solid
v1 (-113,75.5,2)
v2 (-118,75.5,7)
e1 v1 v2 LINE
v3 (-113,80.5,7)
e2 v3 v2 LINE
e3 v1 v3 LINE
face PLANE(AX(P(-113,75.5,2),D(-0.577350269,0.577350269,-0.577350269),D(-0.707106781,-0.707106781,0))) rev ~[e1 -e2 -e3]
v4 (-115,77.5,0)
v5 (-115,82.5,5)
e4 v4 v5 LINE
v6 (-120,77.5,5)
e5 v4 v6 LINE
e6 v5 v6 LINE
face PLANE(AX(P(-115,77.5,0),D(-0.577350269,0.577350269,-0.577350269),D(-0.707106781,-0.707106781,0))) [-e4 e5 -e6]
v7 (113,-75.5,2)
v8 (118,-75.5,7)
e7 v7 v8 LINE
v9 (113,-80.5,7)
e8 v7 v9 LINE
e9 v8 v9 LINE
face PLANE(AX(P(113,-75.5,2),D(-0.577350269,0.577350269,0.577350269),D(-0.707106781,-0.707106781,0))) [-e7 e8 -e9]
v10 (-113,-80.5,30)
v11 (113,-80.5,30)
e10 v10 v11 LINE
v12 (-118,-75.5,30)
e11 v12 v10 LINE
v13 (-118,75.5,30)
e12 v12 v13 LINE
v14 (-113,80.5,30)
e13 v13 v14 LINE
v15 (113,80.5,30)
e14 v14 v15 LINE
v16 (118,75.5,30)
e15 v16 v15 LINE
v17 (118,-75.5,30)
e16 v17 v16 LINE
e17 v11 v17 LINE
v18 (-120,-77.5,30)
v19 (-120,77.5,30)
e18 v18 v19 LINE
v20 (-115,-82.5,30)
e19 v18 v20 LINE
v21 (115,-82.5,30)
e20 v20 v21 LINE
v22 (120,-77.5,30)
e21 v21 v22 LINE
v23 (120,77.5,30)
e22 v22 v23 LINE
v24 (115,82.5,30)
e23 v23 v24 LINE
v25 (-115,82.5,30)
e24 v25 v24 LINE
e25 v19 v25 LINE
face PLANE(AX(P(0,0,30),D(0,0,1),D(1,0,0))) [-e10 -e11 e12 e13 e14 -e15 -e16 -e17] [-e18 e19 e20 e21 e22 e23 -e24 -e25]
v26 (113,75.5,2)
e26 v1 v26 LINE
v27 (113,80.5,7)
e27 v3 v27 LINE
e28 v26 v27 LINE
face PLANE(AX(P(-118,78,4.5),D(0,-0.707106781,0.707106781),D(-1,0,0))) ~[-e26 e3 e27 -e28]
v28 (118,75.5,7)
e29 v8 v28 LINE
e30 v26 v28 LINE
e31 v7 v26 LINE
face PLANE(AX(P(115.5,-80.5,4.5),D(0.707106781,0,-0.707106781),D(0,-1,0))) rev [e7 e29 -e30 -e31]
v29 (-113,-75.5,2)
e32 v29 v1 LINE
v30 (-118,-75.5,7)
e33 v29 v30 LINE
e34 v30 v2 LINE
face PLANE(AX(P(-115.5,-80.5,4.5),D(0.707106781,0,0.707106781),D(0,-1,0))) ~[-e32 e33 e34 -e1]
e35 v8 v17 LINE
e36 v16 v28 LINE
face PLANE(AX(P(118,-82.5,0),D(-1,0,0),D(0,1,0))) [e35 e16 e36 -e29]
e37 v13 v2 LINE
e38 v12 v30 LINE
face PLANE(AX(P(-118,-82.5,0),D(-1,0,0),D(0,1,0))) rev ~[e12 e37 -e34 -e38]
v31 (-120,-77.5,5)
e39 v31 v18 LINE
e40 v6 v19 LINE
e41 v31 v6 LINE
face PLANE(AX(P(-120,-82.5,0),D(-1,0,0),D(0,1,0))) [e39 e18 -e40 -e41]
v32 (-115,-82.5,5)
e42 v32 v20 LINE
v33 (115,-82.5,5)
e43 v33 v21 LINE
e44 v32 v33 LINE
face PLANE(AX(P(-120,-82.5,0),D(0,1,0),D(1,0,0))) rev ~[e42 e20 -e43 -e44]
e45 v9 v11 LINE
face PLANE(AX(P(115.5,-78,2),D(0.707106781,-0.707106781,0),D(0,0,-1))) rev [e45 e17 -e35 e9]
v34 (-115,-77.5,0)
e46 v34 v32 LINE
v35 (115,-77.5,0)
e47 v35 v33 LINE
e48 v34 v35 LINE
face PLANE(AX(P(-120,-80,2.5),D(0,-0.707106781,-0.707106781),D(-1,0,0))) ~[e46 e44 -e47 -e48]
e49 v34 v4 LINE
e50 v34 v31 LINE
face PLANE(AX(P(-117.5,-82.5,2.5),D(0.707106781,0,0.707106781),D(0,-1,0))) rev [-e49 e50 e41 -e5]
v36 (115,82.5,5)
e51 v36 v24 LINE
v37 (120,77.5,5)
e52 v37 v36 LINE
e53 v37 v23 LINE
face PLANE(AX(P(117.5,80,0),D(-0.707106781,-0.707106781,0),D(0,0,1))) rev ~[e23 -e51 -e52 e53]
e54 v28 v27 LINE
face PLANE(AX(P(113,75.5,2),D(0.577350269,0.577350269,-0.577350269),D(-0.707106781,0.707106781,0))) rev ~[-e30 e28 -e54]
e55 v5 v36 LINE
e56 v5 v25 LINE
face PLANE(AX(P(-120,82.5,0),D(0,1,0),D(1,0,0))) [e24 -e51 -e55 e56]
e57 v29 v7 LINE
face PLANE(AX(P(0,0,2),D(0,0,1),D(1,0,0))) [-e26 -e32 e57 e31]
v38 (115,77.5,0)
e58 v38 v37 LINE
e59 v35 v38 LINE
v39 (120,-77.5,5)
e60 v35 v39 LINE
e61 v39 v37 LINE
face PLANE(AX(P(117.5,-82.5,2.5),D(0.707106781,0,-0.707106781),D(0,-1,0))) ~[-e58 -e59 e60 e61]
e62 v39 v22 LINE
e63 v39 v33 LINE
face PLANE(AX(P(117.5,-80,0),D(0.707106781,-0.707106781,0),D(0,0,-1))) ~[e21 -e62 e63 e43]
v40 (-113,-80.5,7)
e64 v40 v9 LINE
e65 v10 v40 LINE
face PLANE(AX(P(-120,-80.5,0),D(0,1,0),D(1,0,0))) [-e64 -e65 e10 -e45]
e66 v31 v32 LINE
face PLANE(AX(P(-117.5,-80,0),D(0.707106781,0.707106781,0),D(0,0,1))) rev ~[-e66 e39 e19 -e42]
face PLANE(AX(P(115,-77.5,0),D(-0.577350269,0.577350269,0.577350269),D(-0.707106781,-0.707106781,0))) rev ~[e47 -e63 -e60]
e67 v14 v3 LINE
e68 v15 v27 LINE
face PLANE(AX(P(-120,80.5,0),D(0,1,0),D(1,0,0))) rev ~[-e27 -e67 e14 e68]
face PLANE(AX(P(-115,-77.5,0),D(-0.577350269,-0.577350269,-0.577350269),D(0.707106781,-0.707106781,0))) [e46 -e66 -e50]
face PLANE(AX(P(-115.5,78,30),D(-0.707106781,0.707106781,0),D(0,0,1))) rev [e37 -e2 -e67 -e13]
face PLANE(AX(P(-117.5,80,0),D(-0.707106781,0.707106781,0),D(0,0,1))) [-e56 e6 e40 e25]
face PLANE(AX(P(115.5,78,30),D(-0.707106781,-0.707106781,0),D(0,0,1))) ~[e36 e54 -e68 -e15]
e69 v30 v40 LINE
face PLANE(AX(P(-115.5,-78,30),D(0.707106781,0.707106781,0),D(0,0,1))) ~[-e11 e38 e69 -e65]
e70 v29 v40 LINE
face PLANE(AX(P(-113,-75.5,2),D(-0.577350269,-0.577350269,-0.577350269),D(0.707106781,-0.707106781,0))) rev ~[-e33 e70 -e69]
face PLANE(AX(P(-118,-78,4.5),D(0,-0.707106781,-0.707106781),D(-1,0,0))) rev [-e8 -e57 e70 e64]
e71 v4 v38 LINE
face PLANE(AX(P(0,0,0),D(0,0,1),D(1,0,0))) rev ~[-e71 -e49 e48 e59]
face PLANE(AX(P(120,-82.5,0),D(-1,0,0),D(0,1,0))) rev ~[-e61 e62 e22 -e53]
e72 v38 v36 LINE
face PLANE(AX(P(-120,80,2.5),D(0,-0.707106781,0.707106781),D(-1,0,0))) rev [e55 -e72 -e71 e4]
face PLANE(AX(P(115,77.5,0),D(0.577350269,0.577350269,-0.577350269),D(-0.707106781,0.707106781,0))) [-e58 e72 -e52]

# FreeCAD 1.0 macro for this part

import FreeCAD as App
import Part
import Sketcher


def edges_at(feature, points):
    """Names of the edges that pass closest to the given points."""
    edges = feature.Shape.Edges
    near = lambda p: min(range(len(edges)), key=lambda i: edges[i].distToShape(Part.Vertex(*p))[0])
    return sorted({f"Edge{near(p) + 1}" for p in points})


def faces_at(feature, points):
    """Names of the faces that lie closest to the given points."""
    faces = feature.Shape.Faces
    near = lambda p: min(range(len(faces)), key=lambda i: faces[i].distToShape(Part.Vertex(*p))[0])
    return sorted({f"Face{near(p) + 1}" for p in points})

doc = App.newDocument("Part")
params = doc.addObject("Spreadsheet::Sheet", "Params")
for row, (alias, value) in enumerate([
    ("sketch1_width", "240 mm"),
    ("sketch1_height", "165 mm"),
    ("pad1_length", "30 mm"),
    ("thickness_wall", "2 mm"),
    ("chamfer_size", "5 mm"),
], start=1):
    params.set(f"A{row}", alias)
    params.set(f"B{row}", "=" + value)
    params.setAlias(f"B{row}", alias)

body = doc.addObject("PartDesign::Body", "Body")

# Sketch on XY plane
sketch1 = body.newObject("Sketcher::SketchObject", "Sketch")
sketch1.AttachmentSupport = (doc.getObject("XY_Plane"), [""])
sketch1.MapMode = "FlatFace"
sketch1.addGeometry([
    Part.LineSegment(App.Vector(-120, 82, 0), App.Vector(-120, -82, 0)),
    Part.LineSegment(App.Vector(-120, -82, 0), App.Vector(120, -82, 0)),
    Part.LineSegment(App.Vector(120, -82, 0), App.Vector(120, 82, 0)),
    Part.LineSegment(App.Vector(120, 82, 0), App.Vector(-120, 82, 0)),
], False)
sketch1.addConstraint([
    Sketcher.Constraint("Coincident", 0, 2, 1, 1),
    Sketcher.Constraint("Coincident", 1, 2, 2, 1),
    Sketcher.Constraint("Coincident", 2, 2, 3, 1),
    Sketcher.Constraint("Coincident", 3, 2, 0, 1),
    Sketcher.Constraint("Vertical", 0),
    Sketcher.Constraint("Horizontal", 1),
    Sketcher.Constraint("Vertical", 2),
    Sketcher.Constraint("Horizontal", 3),
    Sketcher.Constraint("Symmetric", 0, 2, 2, 2, -1, 1),
    Sketcher.Constraint("DistanceX", 1, 1, 1, 2, 240.0),
    Sketcher.Constraint("DistanceY", 0, 2, 0, 1, 165.0),
])
sketch1.setExpression("Constraints[9]", "Params.sketch1_width")
sketch1.setExpression("Constraints[10]", "Params.sketch1_height")
pad1 = body.newObject("PartDesign::Pad", "Pad")
pad1.Profile = sketch1
pad1.setExpression("Length", "Params.pad1_length")
doc.recompute()

thickness = body.newObject("PartDesign::Thickness", "Thickness")
thickness.Base = (pad1, faces_at(pad1, [(0, 0, 30)]))
thickness.setExpression("Value", "Params.thickness_wall")
thickness.Reversed = True
thickness.Join = "Arc"
doc.recompute()

chamfer = body.newObject("PartDesign::Chamfer", "Chamfer")
chamfer.Base = (thickness, edges_at(thickness, [
    (-118, 80.5, 16),
    (118, 80.5, 16),
    (-118, -80.5, 16),
    (118, -80.5, 16),
    (120, -82.5, 15),
    (120, 82.5, 15),
    (-120, -82.5, 15),
    (-120, 82.5, 15),
    (120, 0, 0),
    (0, 82.5, 0),
    (-120, 0, 0),
    (0, -82.5, 0),
    (118, 0, 2),
    (0, 80.5, 2),
    (-118, 0, 2),
    (0, -80.5, 2),
]))
chamfer.setExpression("Size", "Params.chamfer_size")

doc.recompute()
